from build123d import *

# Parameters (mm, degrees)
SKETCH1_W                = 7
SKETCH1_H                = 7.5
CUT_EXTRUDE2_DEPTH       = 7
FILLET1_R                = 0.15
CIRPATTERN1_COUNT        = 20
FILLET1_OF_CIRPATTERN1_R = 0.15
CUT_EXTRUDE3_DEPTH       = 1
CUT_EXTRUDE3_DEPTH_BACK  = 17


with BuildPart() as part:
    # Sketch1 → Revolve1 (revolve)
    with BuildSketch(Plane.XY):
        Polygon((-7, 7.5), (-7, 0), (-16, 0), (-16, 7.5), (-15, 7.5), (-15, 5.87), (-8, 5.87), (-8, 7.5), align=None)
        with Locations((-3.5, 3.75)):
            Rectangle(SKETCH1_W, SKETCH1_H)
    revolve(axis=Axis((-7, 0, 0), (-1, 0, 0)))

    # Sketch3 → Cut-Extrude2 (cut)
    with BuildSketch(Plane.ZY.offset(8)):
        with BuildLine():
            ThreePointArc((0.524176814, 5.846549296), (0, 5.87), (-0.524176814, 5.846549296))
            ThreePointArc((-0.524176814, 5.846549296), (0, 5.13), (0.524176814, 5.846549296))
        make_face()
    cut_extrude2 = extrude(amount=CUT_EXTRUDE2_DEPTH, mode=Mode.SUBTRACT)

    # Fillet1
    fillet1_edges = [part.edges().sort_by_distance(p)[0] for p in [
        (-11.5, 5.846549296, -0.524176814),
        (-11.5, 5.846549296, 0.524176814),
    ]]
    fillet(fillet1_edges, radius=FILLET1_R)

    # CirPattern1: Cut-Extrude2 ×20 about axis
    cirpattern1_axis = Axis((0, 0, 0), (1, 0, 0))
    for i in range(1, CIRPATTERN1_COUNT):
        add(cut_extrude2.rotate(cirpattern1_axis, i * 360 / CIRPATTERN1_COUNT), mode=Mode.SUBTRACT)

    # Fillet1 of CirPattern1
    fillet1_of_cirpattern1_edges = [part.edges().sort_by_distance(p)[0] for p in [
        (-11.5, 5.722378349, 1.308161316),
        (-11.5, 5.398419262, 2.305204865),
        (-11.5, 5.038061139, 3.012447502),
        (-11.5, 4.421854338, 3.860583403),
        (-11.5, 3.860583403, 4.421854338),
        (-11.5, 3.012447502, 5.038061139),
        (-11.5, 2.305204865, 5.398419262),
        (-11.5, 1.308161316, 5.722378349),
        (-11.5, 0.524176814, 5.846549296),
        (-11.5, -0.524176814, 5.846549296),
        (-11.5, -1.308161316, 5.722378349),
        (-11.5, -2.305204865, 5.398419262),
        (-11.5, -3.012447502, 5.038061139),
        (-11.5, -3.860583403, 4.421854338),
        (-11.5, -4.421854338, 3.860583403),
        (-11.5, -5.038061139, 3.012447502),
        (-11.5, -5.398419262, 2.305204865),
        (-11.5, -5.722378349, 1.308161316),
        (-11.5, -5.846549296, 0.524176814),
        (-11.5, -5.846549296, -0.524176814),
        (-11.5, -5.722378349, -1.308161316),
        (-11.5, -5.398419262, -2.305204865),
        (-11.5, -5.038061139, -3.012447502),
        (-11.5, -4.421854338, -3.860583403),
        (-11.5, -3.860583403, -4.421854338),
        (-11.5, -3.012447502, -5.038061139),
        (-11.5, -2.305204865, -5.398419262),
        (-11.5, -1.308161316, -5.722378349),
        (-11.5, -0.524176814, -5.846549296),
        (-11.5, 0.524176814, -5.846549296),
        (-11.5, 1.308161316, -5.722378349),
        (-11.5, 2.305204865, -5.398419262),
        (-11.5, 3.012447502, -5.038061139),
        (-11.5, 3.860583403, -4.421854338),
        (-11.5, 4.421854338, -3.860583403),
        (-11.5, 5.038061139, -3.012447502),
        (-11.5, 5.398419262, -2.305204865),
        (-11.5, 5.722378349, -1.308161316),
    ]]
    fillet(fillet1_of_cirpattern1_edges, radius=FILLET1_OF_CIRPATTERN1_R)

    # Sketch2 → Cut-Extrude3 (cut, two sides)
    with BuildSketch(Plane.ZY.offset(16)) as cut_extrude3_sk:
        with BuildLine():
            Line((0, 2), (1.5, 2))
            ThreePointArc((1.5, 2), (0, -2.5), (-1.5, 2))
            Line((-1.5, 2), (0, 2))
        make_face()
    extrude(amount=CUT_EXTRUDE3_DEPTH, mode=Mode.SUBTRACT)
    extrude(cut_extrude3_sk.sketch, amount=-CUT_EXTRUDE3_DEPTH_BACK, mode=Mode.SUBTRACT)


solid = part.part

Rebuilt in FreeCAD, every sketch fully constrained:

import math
import FreeCAD as App
import Part
import Sketcher


def edges_at(feature, points):
    """Names of the edges that pass closest to the given points."""
    edges = feature.Shape.Edges
    near = lambda p: min(range(len(edges)), key=lambda i: edges[i].distToShape(Part.Vertex(*p))[0])
    return sorted({f"Edge{near(p) + 1}" for p in points})


def add_polygon(sketch, points):
    """Adds a closed chain of lines whose ends are joined by coincident constraints."""
    first, n = sketch.GeometryCount, len(points)
    for a, b in zip(points, points[1:] + points[:1]):
        sketch.addGeometry(Part.LineSegment(App.Vector(*a, 0), App.Vector(*b, 0)), False)
    for i in range(n):
        sketch.addConstraint(Sketcher.Constraint("Coincident", first + i, 2, first + (i + 1) % n, 1))

doc = App.newDocument("Part")
body = doc.addObject("PartDesign::Body", "Body")

sketch1 = body.newObject("Sketcher::SketchObject", "Sketch")
sketch1.AttachmentSupport = (doc.getObject("XY_Plane"), [""])
sketch1.MapMode = "FlatFace"
add_polygon(sketch1, [(-16, 0), (0, 0), (0, 7.5), (-8, 7.5), (-8, 5.9), (-15, 5.9), (-15, 7.5), (-16, 7.5)])
sketch1.addConstraint(Sketcher.Constraint("Horizontal", 0))
sketch1.addConstraint(Sketcher.Constraint("Vertical", 1))
sketch1.addConstraint(Sketcher.Constraint("Horizontal", 2))
sketch1.addConstraint(Sketcher.Constraint("Vertical", 3))
sketch1.addConstraint(Sketcher.Constraint("Horizontal", 4))
sketch1.addConstraint(Sketcher.Constraint("Vertical", 5))
sketch1.addConstraint(Sketcher.Constraint("Horizontal", 6))
sketch1.addConstraint(Sketcher.Constraint("Vertical", 7))
sketch1.addConstraint(Sketcher.Constraint("Coincident", 0, 2, -1, 1))
sketch1.addConstraint(Sketcher.Constraint("Horizontal", 2, 2, 5, 2))
sketch1.addConstraint(Sketcher.Constraint("DistanceX", 0, 1, 0, 2, 16.0))
sketch1.addConstraint(Sketcher.Constraint("DistanceX", 2, 2, 2, 1, 8.0))
sketch1.addConstraint(Sketcher.Constraint("DistanceX", 4, 2, 4, 1, 7.0))
sketch1.addConstraint(Sketcher.Constraint("DistanceY", 1, 1, 1, 2, 7.5))
sketch1.addConstraint(Sketcher.Constraint("DistanceY", 3, 2, 3, 1, 1.63))
revolution = body.newObject("PartDesign::Revolution", "Revolution")
revolution.Profile = sketch1
revolution.ReferenceAxis = (sketch1, ["H_Axis"])
revolution.Angle = 360

sketch2 = body.newObject("Sketcher::SketchObject", "Sketch001")
sketch2.AttachmentSupport = (doc.getObject("YZ_Plane"), [""])
sketch2.MapMode = "FlatFace"
sketch2.AttachmentOffset = App.Placement(App.Vector(0, 0, -8), App.Rotation())
sketch2.addGeometry(Part.ArcOfCircle(Part.Circle(App.Vector(0, 0, 0), App.Vector(0, 0, 1), 5.9), math.radians(-5.12), math.radians(5.12)), False)
sketch2.addGeometry(Part.ArcOfCircle(Part.Circle(App.Vector(5.7, 0, 0), App.Vector(0, 0, 1), 0.6), math.radians(72), math.radians(288)), False)
sketch2.addConstraint(Sketcher.Constraint("Coincident", 0, 1, 1, 2))
sketch2.addConstraint(Sketcher.Constraint("Coincident", 1, 1, 0, 2))
sketch2.addConstraint(Sketcher.Constraint("Coincident", 0, 3, -1, 1))
sketch2.addConstraint(Sketcher.Constraint("PointOnObject", 1, 3, -1))
sketch2.addConstraint(Sketcher.Constraint("Radius", 0, 5.87))
sketch2.addConstraint(Sketcher.Constraint("Radius", 1, 0.55))
sketch2.addConstraint(Sketcher.Constraint("DistanceX", -1, 1, 1, 3, 5.68))
pocket1 = body.newObject("PartDesign::Pocket", "Pocket")
pocket1.Profile = sketch2
pocket1.Length = 7
doc.recompute()

fillet = body.newObject("PartDesign::Fillet", "Fillet")
fillet.Base = (pocket1, edges_at(pocket1, [(-11.5, 5.847, -0.524), (-11.5, 5.847, 0.524)]))
fillet.Radius = 0.15
doc.recompute()

polarpattern = body.newObject("PartDesign::PolarPattern", "PolarPattern")
polarpattern.Originals = [pocket1]
polarpattern.Axis = (doc.getObject("X_Axis"), [""])
polarpattern.Angle = 360
polarpattern.Occurrences = 20
body.Tip = polarpattern
doc.recompute()

fillet2 = body.newObject("PartDesign::Fillet", "Fillet001")
fillet2.Base = (polarpattern, edges_at(polarpattern, [
    (-11.5, 5.722, 1.308),
    (-11.5, 5.398, 2.305),
    (-11.5, 5.038, 3.012),
    (-11.5, 4.422, 3.861),
    (-11.5, 3.861, 4.422),
    (-11.5, 3.012, 5.038),
    (-11.5, 2.305, 5.398),
    (-11.5, 1.308, 5.722),
    (-11.5, 0.524, 5.847),
    (-11.5, -0.524, 5.847),
    (-11.5, -1.308, 5.722),
    (-11.5, -2.305, 5.398),
    (-11.5, -3.012, 5.038),
    (-11.5, -3.861, 4.422),
    (-11.5, -4.422, 3.861),
    (-11.5, -5.038, 3.012),
    (-11.5, -5.398, 2.305),
    (-11.5, -5.722, 1.308),
    (-11.5, -5.847, 0.524),
    (-11.5, -5.847, -0.524),
    (-11.5, -5.722, -1.308),
    (-11.5, -5.398, -2.305),
    (-11.5, -5.038, -3.012),
    (-11.5, -4.422, -3.861),
    (-11.5, -3.861, -4.422),
    (-11.5, -3.012, -5.038),
    (-11.5, -2.305, -5.398),
    (-11.5, -1.308, -5.722),
    (-11.5, -0.524, -5.847),
    (-11.5, 0.524, -5.847),
    (-11.5, 1.308, -5.722),
    (-11.5, 2.305, -5.398),
    (-11.5, 3.012, -5.038),
    (-11.5, 3.861, -4.422),
    (-11.5, 4.422, -3.861),
    (-11.5, 5.038, -3.012),
    (-11.5, 5.398, -2.305),
    (-11.5, 5.722, -1.308),
]))
fillet2.Radius = 0.15

sketch3 = body.newObject("Sketcher::SketchObject", "Sketch002")
sketch3.AttachmentSupport = (doc.getObject("YZ_Plane"), [""])
sketch3.MapMode = "FlatFace"
sketch3.AttachmentOffset = App.Placement(App.Vector(0, 0, -16), App.Rotation())
sketch3.addGeometry(Part.ArcOfCircle(Part.Circle(App.Vector(0, 0, 0), App.Vector(0, 0, 1), 2.5), math.radians(37), math.radians(323)), False)
sketch3.addGeometry(Part.LineSegment(App.Vector(2, 1.5, 0), App.Vector(2, -1.5, 0)), False)
sketch3.addConstraint(Sketcher.Constraint("Coincident", 0, 1, 1, 1))
sketch3.addConstraint(Sketcher.Constraint("Coincident", 1, 2, 0, 2))
sketch3.addConstraint(Sketcher.Constraint("Vertical", 1))
sketch3.addConstraint(Sketcher.Constraint("Coincident", 0, 3, -1, 1))
sketch3.addConstraint(Sketcher.Constraint("Radius", 0, 2.5))
sketch3.addConstraint(Sketcher.Constraint("DistanceY", 1, 2, 1, 1, 3.0))
pocket2 = body.newObject("PartDesign::Pocket", "Pocket001")
pocket2.Profile = sketch3
pocket2.Type = "ThroughAll"
pocket2.Midplane = True

doc.recompute()
